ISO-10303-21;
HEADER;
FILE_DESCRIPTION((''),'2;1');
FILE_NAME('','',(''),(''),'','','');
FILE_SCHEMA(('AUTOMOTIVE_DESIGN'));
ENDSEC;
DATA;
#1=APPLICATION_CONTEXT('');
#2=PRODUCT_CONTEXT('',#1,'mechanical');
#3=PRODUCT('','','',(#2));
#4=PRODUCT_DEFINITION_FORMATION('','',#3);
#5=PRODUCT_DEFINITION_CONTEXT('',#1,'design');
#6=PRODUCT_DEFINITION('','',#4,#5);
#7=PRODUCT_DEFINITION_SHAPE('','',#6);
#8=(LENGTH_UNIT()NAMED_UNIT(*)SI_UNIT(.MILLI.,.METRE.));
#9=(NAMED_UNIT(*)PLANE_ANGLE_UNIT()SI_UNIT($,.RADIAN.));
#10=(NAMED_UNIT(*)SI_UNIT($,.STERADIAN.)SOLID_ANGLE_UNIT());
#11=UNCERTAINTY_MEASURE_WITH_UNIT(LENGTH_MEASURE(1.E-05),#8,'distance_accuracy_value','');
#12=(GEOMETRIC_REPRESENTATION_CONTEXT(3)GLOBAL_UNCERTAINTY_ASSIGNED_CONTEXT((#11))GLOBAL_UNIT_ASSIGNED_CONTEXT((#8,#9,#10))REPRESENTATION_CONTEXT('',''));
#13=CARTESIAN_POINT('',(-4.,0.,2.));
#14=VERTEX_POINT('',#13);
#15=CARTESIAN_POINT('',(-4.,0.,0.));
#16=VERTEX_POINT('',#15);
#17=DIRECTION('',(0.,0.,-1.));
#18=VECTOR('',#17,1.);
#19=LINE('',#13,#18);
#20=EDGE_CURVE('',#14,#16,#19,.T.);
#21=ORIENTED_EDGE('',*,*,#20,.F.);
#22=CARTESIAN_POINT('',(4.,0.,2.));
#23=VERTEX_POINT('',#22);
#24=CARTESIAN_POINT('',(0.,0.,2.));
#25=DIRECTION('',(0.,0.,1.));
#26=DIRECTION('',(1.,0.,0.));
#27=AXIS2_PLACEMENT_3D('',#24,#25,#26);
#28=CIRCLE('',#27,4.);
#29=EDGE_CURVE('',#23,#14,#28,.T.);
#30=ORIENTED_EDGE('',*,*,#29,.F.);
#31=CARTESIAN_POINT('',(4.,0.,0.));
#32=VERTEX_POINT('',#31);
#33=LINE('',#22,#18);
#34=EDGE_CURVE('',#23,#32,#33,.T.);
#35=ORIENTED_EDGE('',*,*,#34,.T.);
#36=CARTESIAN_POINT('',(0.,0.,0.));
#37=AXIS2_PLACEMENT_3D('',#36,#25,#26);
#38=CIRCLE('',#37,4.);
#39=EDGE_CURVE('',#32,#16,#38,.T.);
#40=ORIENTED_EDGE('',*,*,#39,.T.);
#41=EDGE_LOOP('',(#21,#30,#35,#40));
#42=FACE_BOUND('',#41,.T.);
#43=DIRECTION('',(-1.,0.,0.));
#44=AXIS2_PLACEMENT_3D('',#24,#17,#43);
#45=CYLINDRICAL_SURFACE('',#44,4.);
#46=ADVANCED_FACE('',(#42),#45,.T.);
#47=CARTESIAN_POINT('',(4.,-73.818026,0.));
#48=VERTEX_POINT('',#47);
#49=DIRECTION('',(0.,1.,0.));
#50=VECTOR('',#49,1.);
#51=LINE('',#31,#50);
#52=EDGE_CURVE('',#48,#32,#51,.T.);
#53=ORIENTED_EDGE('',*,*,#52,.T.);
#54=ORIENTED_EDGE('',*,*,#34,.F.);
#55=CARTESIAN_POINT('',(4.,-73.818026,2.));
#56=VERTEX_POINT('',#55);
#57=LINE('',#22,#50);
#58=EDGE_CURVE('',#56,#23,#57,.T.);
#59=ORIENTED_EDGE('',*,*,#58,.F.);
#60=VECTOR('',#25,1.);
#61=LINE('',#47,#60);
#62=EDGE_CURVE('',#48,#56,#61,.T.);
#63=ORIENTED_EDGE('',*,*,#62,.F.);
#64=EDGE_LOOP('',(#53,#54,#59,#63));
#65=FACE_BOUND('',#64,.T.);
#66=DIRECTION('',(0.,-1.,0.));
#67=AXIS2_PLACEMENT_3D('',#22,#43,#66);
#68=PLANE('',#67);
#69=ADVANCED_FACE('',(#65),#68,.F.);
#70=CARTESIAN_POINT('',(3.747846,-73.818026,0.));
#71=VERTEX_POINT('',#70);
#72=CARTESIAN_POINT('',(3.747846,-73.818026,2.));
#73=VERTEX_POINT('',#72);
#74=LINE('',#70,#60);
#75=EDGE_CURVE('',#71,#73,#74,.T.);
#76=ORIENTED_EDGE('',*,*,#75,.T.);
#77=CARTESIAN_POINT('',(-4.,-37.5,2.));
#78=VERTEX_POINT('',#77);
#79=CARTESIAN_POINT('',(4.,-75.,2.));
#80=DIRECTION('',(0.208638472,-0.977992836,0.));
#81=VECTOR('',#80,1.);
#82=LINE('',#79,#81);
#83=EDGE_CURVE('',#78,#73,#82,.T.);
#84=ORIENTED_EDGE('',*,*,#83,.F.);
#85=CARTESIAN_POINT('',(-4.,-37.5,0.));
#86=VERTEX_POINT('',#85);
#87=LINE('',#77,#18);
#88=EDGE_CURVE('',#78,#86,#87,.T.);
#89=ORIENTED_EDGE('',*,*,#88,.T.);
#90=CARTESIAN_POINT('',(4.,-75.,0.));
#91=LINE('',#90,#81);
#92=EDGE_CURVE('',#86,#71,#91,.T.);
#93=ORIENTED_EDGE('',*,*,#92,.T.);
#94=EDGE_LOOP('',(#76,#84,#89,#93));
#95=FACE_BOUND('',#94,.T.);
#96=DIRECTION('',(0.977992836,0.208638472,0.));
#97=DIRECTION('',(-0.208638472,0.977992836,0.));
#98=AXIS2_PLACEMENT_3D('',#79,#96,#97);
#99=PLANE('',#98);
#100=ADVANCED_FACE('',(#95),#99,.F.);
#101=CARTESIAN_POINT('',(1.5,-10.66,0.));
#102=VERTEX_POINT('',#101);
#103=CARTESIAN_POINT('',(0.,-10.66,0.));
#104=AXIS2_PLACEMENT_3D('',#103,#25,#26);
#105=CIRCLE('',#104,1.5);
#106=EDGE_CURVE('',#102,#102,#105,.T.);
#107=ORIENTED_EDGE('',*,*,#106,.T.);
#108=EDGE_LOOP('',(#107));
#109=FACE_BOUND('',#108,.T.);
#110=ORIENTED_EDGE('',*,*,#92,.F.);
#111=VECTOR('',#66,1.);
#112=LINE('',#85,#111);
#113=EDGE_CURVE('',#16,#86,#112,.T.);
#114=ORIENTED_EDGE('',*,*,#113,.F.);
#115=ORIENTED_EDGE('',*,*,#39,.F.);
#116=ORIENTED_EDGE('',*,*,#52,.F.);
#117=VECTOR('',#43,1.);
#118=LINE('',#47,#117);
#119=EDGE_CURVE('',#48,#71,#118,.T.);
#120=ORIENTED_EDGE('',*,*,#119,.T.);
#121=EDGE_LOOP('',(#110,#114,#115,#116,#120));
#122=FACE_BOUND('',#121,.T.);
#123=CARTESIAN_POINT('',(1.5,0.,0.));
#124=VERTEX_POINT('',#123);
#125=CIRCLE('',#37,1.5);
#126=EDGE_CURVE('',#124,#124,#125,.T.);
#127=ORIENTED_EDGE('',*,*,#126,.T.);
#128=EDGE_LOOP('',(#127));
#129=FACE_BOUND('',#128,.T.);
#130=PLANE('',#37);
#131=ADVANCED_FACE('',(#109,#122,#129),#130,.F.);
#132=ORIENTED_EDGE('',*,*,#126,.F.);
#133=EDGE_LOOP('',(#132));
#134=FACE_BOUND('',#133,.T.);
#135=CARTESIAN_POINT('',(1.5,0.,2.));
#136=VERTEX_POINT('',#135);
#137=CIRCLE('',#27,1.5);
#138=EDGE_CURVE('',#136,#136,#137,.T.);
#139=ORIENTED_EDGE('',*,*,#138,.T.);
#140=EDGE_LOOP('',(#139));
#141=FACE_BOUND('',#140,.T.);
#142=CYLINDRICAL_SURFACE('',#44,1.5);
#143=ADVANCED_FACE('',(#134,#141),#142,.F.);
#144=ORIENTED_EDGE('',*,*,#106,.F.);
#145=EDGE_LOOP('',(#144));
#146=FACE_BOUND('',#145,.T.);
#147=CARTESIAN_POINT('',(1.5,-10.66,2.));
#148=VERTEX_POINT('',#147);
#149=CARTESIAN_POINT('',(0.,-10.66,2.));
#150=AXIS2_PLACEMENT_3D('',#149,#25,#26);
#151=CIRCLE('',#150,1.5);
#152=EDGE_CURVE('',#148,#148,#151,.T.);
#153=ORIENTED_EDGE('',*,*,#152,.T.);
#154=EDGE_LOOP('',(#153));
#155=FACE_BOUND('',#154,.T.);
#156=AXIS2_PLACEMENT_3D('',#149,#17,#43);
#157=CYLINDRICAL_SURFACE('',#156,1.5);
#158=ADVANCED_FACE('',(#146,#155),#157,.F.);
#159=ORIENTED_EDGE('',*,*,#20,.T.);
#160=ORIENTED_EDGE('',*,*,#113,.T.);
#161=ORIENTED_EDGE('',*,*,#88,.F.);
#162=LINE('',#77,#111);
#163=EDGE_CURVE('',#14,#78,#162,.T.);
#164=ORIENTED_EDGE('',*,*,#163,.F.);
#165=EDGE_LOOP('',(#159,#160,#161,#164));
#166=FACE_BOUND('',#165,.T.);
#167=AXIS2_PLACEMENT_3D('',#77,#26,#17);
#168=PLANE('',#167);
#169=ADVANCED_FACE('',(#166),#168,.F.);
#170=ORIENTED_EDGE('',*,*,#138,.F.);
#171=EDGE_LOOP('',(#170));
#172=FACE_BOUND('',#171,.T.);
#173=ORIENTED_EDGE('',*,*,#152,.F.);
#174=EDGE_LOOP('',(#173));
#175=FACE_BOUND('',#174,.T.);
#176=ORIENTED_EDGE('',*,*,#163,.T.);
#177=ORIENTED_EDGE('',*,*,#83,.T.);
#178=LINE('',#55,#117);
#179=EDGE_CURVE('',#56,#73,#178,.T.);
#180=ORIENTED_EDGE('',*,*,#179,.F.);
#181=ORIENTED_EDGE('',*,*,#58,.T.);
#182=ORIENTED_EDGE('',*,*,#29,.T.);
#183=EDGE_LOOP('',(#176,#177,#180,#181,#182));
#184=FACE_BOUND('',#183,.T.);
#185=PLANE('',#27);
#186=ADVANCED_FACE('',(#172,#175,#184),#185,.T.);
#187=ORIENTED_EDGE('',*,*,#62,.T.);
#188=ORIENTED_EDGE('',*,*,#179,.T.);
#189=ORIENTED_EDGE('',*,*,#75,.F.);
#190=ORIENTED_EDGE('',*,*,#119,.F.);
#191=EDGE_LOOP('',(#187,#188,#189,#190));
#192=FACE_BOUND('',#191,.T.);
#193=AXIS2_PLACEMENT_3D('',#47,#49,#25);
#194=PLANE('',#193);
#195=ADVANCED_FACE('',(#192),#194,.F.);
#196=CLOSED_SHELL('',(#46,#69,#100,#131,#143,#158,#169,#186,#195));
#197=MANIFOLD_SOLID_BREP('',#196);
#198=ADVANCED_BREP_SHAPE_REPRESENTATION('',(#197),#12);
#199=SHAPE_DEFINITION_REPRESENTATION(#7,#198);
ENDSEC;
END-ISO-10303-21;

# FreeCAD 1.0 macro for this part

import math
import FreeCAD as App
import Part
import Sketcher

V = App.Vector


def add_polygon(sketch, points):
    """Adds a closed chain of lines whose ends are joined by coincident constraints."""
    first, n = sketch.GeometryCount, len(points)
    for a, b in zip(points, points[1:] + points[:1]):
        sketch.addGeometry(Part.LineSegment(App.Vector(*a, 0), App.Vector(*b, 0)), False)
    for i in range(n):
        sketch.addConstraint(Sketcher.Constraint("Coincident", first + i, 2, first + (i + 1) % n, 1))

doc = App.newDocument("Part")
body = doc.addObject("PartDesign::Body", "Body")

# Sketch on XY plane
sketch1 = doc.addObject("Sketcher::SketchObject", "Sketch")
body.addObject(sketch1)
sketch1.AttachmentSupport = (doc.XY_Plane, [""])
sketch1.MapMode = "FlatFace"
sketch1.addGeometry(Part.LineSegment(V(4, -75, 0), V(4, 0, 0)), False)
sketch1.addGeometry(Part.ArcOfCircle(Part.Circle(V(0, 0, 0), V(0, 0, 1), 4), math.radians(0), math.radians(180)), False)
sketch1.addGeometry(Part.LineSegment(V(-4, 0, 0), V(-4, -37.5, 0)), False)
sketch1.addGeometry(Part.LineSegment(V(-4, -37.5, 0), V(4, -75, 0)), False)
sketch1.addGeometry(Part.Circle(V(0, -10.7, 0), V(0, 0, 1), 1.5), False)
sketch1.addGeometry(Part.Circle(V(0, 0, 0), V(0, 0, 1), 1.5), False)
sketch1.addConstraint(Sketcher.Constraint("Tangent", 0, 2, 1, 1))
sketch1.addConstraint(Sketcher.Constraint("Tangent", 1, 2, 2, 1))
sketch1.addConstraint(Sketcher.Constraint("Coincident", 2, 2, 3, 1))
sketch1.addConstraint(Sketcher.Constraint("Coincident", 3, 2, 0, 1))
sketch1.addConstraint(Sketcher.Constraint("Vertical", 0))
sketch1.addConstraint(Sketcher.Constraint("Vertical", 2))
sketch1.addConstraint(Sketcher.Constraint("Coincident", 1, 3, -1, 1))
sketch1.addConstraint(Sketcher.Constraint("Coincident", 5, 3, -1, 1))
sketch1.addConstraint(Sketcher.Constraint("Equal", 4, 5))
sketch1.addConstraint(Sketcher.Constraint("PointOnObject", 4, 3, -2))
sketch1.addConstraint(Sketcher.Constraint("Diameter", 4, 3.0))
sketch1.addConstraint(Sketcher.Constraint("Radius", 1, 4.0))
sketch1.addConstraint(Sketcher.Constraint("DistanceY", 0, 1, 0, 2, 75.0))
sketch1.addConstraint(Sketcher.Constraint("DistanceY", 2, 2, 2, 1, 37.5))
sketch1.addConstraint(Sketcher.Constraint("DistanceY", 4, 3, -1, 1, 10.66))
pad1 = doc.addObject("PartDesign::Pad", "Pad")
body.addObject(pad1)
pad1.Profile = sketch1
pad1.Length = 2

# Sketch on XY plane
sketch2 = doc.addObject("Sketcher::SketchObject", "Sketch001")
body.addObject(sketch2)
sketch2.AttachmentSupport = (doc.XY_Plane, [""])
sketch2.MapMode = "FlatFace"
sketch2.AttachmentOffset = App.Placement(V(0, 0, 2), App.Rotation())
add_polygon(sketch2, [(4, -73.82), (3.75, -73.82), (4, -75)])  # lines 0-2
sketch2.addConstraint(Sketcher.Constraint("Horizontal", 0))
sketch2.addConstraint(Sketcher.Constraint("Vertical", 2))
sketch2.addConstraint(Sketcher.Constraint("DistanceX", -1, 1, 1, 2, 4.0))
sketch2.addConstraint(Sketcher.Constraint("DistanceY", 1, 2, -1, 1, 75.0))
sketch2.addConstraint(Sketcher.Constraint("Distance", 1, 1.208571))
sketch2.addConstraint(Sketcher.Constraint("DistanceX", 0, 2, 0, 1, 0.252154))
pocket1 = doc.addObject("PartDesign::Pocket", "Pocket")
body.addObject(pocket1)
pocket1.Profile = sketch2
pocket1.Length = 2

doc.recompute()
